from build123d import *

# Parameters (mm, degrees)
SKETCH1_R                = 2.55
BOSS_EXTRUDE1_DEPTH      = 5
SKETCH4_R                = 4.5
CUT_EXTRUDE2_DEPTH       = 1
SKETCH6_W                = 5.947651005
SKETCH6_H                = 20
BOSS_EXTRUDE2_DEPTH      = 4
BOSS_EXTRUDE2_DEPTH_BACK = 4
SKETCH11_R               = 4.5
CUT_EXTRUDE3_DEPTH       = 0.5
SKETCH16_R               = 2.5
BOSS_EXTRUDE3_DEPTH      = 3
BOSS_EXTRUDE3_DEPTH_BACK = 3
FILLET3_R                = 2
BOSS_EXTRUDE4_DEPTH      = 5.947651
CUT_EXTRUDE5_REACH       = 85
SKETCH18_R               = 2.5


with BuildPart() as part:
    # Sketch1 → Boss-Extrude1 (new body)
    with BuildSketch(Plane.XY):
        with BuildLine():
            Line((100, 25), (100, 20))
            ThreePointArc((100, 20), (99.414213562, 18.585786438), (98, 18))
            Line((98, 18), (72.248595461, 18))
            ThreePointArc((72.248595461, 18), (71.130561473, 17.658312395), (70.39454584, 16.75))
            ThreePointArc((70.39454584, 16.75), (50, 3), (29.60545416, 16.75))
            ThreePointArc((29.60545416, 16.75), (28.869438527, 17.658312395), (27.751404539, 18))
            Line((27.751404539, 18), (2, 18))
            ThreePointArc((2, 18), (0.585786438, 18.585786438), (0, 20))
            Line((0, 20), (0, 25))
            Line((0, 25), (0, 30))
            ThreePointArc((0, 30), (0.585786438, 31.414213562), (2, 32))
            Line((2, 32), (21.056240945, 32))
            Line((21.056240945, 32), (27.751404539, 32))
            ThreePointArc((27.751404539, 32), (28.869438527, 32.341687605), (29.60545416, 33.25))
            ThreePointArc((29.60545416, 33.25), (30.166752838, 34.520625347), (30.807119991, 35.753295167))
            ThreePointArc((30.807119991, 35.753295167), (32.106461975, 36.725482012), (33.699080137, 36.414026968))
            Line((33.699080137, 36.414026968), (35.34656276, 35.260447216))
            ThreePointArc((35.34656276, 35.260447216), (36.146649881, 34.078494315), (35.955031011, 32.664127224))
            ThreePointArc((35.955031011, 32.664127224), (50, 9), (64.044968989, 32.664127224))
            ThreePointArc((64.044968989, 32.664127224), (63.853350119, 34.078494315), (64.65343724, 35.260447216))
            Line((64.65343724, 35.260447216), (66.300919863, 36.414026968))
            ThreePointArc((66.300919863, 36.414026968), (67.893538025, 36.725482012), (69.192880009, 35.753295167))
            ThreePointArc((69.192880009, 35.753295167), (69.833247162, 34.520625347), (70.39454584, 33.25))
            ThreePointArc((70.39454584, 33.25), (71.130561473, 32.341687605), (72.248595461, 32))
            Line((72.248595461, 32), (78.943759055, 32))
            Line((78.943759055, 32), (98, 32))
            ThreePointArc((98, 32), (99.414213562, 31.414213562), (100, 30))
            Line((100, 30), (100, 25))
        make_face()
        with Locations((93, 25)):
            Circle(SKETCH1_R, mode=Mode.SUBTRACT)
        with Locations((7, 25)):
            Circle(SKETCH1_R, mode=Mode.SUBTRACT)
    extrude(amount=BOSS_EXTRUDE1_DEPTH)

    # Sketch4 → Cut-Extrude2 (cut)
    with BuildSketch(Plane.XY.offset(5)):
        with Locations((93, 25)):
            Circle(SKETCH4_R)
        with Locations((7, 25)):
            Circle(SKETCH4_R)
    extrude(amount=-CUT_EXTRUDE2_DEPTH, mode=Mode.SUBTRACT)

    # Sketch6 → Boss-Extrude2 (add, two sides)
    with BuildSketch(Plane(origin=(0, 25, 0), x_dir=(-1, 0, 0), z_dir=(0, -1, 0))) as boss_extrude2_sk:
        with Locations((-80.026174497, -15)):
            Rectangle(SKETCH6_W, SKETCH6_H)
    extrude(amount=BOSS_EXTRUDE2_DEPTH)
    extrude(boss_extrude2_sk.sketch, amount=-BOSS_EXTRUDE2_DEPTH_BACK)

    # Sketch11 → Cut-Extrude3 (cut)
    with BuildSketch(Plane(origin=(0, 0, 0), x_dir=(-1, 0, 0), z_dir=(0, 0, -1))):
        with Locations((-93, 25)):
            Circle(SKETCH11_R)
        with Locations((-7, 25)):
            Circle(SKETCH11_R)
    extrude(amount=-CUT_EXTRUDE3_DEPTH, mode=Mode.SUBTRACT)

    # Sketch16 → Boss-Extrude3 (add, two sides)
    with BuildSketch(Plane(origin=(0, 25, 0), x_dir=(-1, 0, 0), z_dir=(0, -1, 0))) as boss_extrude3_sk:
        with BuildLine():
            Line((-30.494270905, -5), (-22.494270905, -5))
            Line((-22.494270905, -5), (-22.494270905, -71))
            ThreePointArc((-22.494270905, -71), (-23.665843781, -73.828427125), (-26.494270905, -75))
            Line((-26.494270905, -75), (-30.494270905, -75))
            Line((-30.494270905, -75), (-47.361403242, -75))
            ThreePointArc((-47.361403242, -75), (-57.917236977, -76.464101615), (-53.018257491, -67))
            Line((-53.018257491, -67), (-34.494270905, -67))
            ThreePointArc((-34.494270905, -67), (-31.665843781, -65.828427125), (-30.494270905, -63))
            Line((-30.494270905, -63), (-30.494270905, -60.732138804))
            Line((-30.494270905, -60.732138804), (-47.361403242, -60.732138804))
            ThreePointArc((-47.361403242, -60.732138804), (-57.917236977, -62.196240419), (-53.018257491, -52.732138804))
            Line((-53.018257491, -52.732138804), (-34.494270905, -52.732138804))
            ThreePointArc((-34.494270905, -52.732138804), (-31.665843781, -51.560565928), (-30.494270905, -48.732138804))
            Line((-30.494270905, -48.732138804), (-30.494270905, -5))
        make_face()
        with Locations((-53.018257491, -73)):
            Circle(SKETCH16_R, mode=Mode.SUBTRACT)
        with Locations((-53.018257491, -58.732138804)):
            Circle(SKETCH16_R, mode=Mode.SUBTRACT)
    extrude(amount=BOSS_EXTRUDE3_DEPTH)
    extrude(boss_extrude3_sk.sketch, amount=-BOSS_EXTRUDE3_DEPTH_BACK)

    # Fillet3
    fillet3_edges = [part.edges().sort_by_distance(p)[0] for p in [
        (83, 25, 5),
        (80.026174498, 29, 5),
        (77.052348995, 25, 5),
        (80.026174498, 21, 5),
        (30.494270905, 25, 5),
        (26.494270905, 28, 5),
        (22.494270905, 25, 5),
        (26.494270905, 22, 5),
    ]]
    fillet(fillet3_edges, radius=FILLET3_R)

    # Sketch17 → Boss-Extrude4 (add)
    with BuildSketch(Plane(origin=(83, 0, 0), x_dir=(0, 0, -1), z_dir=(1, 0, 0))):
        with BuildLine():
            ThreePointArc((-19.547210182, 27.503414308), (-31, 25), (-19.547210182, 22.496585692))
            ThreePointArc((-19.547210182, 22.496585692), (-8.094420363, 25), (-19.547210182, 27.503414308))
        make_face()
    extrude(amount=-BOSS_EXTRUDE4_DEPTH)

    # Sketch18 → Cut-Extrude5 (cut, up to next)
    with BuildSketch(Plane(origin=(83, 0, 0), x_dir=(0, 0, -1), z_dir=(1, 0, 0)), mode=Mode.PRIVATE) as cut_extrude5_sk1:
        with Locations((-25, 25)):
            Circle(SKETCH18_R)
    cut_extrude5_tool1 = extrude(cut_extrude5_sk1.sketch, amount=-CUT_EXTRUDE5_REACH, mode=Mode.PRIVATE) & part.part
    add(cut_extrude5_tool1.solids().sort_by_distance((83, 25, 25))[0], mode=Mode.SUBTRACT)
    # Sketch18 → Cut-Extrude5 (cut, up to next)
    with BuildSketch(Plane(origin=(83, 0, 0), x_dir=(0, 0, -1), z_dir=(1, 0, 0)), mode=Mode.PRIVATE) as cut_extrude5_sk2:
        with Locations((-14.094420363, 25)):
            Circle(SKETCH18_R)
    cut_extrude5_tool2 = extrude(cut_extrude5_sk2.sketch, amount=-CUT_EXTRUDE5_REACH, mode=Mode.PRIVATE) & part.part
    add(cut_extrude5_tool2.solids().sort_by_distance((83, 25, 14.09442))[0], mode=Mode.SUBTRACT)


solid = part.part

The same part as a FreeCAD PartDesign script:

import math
import FreeCAD as App
import Part
import Sketcher

V = App.Vector
Q = App.Units.Quantity


def edges_at(feature, points):
    """Names of the edges that pass closest to the given points."""
    edges = feature.Shape.Edges
    near = lambda p: min(range(len(edges)), key=lambda i: edges[i].distToShape(Part.Vertex(*p))[0])
    return sorted({f"Edge{near(p) + 1}" for p in points})


def add_polygon(sketch, points):
    """Adds a closed chain of lines whose ends are joined by coincident constraints."""
    first, n = sketch.GeometryCount, len(points)
    for a, b in zip(points, points[1:] + points[:1]):
        sketch.addGeometry(Part.LineSegment(App.Vector(*a, 0), App.Vector(*b, 0)), False)
    for i in range(n):
        sketch.addConstraint(Sketcher.Constraint("Coincident", first + i, 2, first + (i + 1) % n, 1))

doc = App.newDocument("Part")
body = doc.addObject("PartDesign::Body", "Body")

# Sketch on XY plane
sketch1 = doc.addObject("Sketcher::SketchObject", "Sketch")
body.addObject(sketch1)
sketch1.AttachmentSupport = (doc.XY_Plane, [""])
sketch1.MapMode = "FlatFace"
sketch1.addGeometry([
    Part.ArcOfCircle(Part.Circle(V(98, 20, 0), V(0, 0, 1), 2), math.radians(-90), math.radians(0)),  # 0
    Part.LineSegment(V(100, 20, 0), V(100, 30, 0)),  # 1
    Part.ArcOfCircle(Part.Circle(V(98, 30, 0), V(0, 0, 1), 2), math.radians(0), math.radians(90)),  # 2
    Part.LineSegment(V(98, 32, 0), V(72.2, 32, 0)),  # 3
    Part.ArcOfCircle(Part.Circle(V(72.2, 34, 0), V(0, 0, 1), 2), math.radians(-158), math.radians(-90)),  # 4
    Part.ArcOfCircle(Part.Circle(V(50, 25, 0), V(0, 0, 1), 22), math.radians(22.02), math.radians(29.26)),  # 5
    Part.ArcOfCircle(Part.Circle(V(67.4, 34.8, 0), V(0, 0, 1), 2), math.radians(29), math.radians(125)),  # 6
    Part.LineSegment(V(66.3, 36.4, 0), V(64.7, 35.3, 0)),  # 7
    Part.ArcOfCircle(Part.Circle(V(65.8, 33.6, 0), V(0, 0, 1), 2), math.radians(125), math.radians(209)),  # 8
    Part.ArcOfCircle(Part.Circle(V(50, 25, 0), V(0, 0, 1), 16), math.radians(151), math.radians(389)),  # 9
    Part.ArcOfCircle(Part.Circle(V(34.2, 33.6, 0), V(0, 0, 1), 2), math.radians(-29), math.radians(55)),  # 10
    Part.LineSegment(V(35.3, 35.3, 0), V(33.7, 36.4, 0)),  # 11
    Part.ArcOfCircle(Part.Circle(V(32.6, 34.8, 0), V(0, 0, 1), 2), math.radians(55), math.radians(151)),  # 12
    Part.ArcOfCircle(Part.Circle(V(50, 25, 0), V(0, 0, 1), 22), math.radians(150.74), math.radians(157.98)),  # 13
    Part.ArcOfCircle(Part.Circle(V(27.8, 34, 0), V(0, 0, 1), 2), math.radians(-90), math.radians(-22)),  # 14
    Part.LineSegment(V(27.8, 32, 0), V(2, 32, 0)),  # 15
    Part.ArcOfCircle(Part.Circle(V(2, 30, 0), V(0, 0, 1), 2), math.radians(90), math.radians(180)),  # 16
    Part.LineSegment(V(0, 30, 0), V(0, 20, 0)),  # 17
    Part.ArcOfCircle(Part.Circle(V(2, 20, 0), V(0, 0, 1), 2), math.radians(-180), math.radians(-90)),  # 18
    Part.LineSegment(V(2, 18, 0), V(27.8, 18, 0)),  # 19
    Part.ArcOfCircle(Part.Circle(V(27.8, 16, 0), V(0, 0, 1), 2), math.radians(22), math.radians(90)),  # 20
    Part.ArcOfCircle(Part.Circle(V(50, 25, 0), V(0, 0, 1), 22), math.radians(-158), math.radians(-22)),  # 21
    Part.ArcOfCircle(Part.Circle(V(72.2, 16, 0), V(0, 0, 1), 2), math.radians(90), math.radians(158)),  # 22
    Part.LineSegment(V(72.2, 18, 0), V(98, 18, 0)),  # 23
    Part.Circle(V(93, 25, 0), V(0, 0, 1), 2.5),  # 24
    Part.Circle(V(7, 25, 0), V(0, 0, 1), 2.5),  # 25
], False)
sketch1.addConstraint([
    Sketcher.Constraint("Tangent", 0, 2, 1, 1),
    Sketcher.Constraint("Tangent", 1, 2, 2, 1),
    Sketcher.Constraint("Tangent", 2, 2, 3, 1),
    Sketcher.Constraint("Tangent", 3, 2, 4, 2),
    Sketcher.Constraint("Tangent", 4, 1, 5, 1),
    Sketcher.Constraint("Tangent", 5, 2, 6, 1),
    Sketcher.Constraint("Tangent", 6, 2, 7, 1),
    Sketcher.Constraint("Tangent", 7, 2, 8, 1),
    Sketcher.Constraint("Tangent", 8, 2, 9, 2),
    Sketcher.Constraint("Tangent", 9, 1, 10, 1),
    Sketcher.Constraint("Tangent", 10, 2, 11, 1),
    Sketcher.Constraint("Tangent", 11, 2, 12, 1),
    Sketcher.Constraint("Tangent", 12, 2, 13, 1),
    Sketcher.Constraint("Tangent", 13, 2, 14, 2),
    Sketcher.Constraint("Tangent", 14, 1, 15, 1),
    Sketcher.Constraint("Tangent", 15, 2, 16, 1),
    Sketcher.Constraint("Tangent", 16, 2, 17, 1),
    Sketcher.Constraint("Tangent", 17, 2, 18, 1),
    Sketcher.Constraint("Tangent", 18, 2, 19, 1),
    Sketcher.Constraint("Tangent", 19, 2, 20, 2),
    Sketcher.Constraint("Tangent", 20, 1, 21, 1),
    Sketcher.Constraint("Tangent", 21, 2, 22, 2),
    Sketcher.Constraint("Tangent", 22, 1, 23, 1),
    Sketcher.Constraint("Tangent", 23, 2, 0, 1),
    Sketcher.Constraint("Vertical", 1),
    Sketcher.Constraint("Horizontal", 3),
    Sketcher.Constraint("Horizontal", 15),
    Sketcher.Constraint("Vertical", 17),
    Sketcher.Constraint("Horizontal", 19),
    Sketcher.Constraint("Horizontal", 23),
    Sketcher.Constraint("Coincident", 9, 3, 5, 3),
    Sketcher.Constraint("Coincident", 13, 3, 5, 3),
    Sketcher.Constraint("Coincident", 21, 3, 5, 3),
    Sketcher.Constraint("Equal", 0, 2),
    Sketcher.Constraint("Equal", 2, 4),
    Sketcher.Constraint("Equal", 4, 6),
    Sketcher.Constraint("Equal", 6, 8),
    Sketcher.Constraint("Equal", 8, 10),
    Sketcher.Constraint("Equal", 10, 12),
    Sketcher.Constraint("Equal", 5, 13),
    Sketcher.Constraint("Equal", 12, 14),
    Sketcher.Constraint("Equal", 14, 16),
    Sketcher.Constraint("Equal", 16, 18),
    Sketcher.Constraint("Equal", 18, 20),
    Sketcher.Constraint("Equal", 13, 21),
    Sketcher.Constraint("Equal", 20, 22),
    Sketcher.Constraint("Equal", 24, 25),
    Sketcher.Constraint("PointOnObject", 16, 2, -2),
    Sketcher.Constraint("Horizontal", 8, 3, 10, 3),
    Sketcher.Constraint("Horizontal", 6, 3, 12, 3),
    Sketcher.Constraint("Horizontal", 4, 3, 14, 3),
    Sketcher.Constraint("Horizontal", 0, 3, 18, 3),
    Sketcher.Constraint("Horizontal", 21, 3, 24, 3),
    Sketcher.Constraint("Horizontal", 24, 3, 25, 3),
    Sketcher.Constraint("Vertical", 14, 3, 20, 3),
    Sketcher.Constraint("Equal", 3, 15),
    Sketcher.Constraint("Radius", 0, Q("2 mm")),
    Sketcher.Constraint("Radius", 5, Q("22 mm")),
    Sketcher.Constraint("Radius", 9, Q("16 mm")),
    Sketcher.Constraint("Diameter", 24, Q("5.1 mm")),
    Sketcher.Constraint("DistanceY", 1, 1, 1, 2, Q("10 mm")),
    Sketcher.Constraint("Angle", 7, Q("-145 deg")),
    Sketcher.Constraint("DistanceX", -1, 1, 0, 3, Q("98 mm")),
    Sketcher.Constraint("DistanceY", -1, 1, 0, 3, Q("20 mm")),
    Sketcher.Constraint("DistanceX", -1, 1, 24, 3, Q("93 mm")),
    Sketcher.Constraint("DistanceX", -1, 1, 25, 3, Q("7 mm")),
    Sketcher.Constraint("DistanceY", 8, 2, 6, 2, Q("3.7499 mm")),
])
pad1 = doc.addObject("PartDesign::Pad", "Pad")
body.addObject(pad1)
pad1.Profile = sketch1
pad1.Length = 5

# Sketch on XY plane
sketch2 = doc.addObject("Sketcher::SketchObject", "Sketch001")
body.addObject(sketch2)
sketch2.AttachmentSupport = (doc.XY_Plane, [""])
sketch2.MapMode = "FlatFace"
sketch2.AttachmentOffset = App.Placement(V(0, 0, 5), App.Rotation())
sketch2.addGeometry([
    Part.Circle(V(93, 25, 0), V(0, 0, 1), 4.5),
    Part.Circle(V(7, 25, 0), V(0, 0, 1), 4.5),
], False)
sketch2.addConstraint([
    Sketcher.Constraint("Equal", 0, 1),
    Sketcher.Constraint("Horizontal", 0, 3, 1, 3),
    Sketcher.Constraint("Diameter", 0, Q("9 mm")),
    Sketcher.Constraint("DistanceX", -1, 1, 0, 3, Q("93 mm")),
    Sketcher.Constraint("DistanceY", -1, 1, 0, 3, Q("25 mm")),
    Sketcher.Constraint("DistanceX", -1, 1, 1, 3, Q("7 mm")),
])
pocket1 = doc.addObject("PartDesign::Pocket", "Pocket")
body.addObject(pocket1)
pocket1.Profile = sketch2
pocket1.Length = 1

# Sketch on XZ plane
sketch3 = doc.addObject("Sketcher::SketchObject", "Sketch002")
body.addObject(sketch3)
sketch3.AttachmentSupport = (doc.XZ_Plane, [""])
sketch3.MapMode = "FlatFace"
sketch3.AttachmentOffset = App.Placement(V(0, 0, -25), App.Rotation())
add_polygon(sketch3, [(83, 5), (83, 25), (77, 25), (77, 5)])  # lines 0-3
sketch3.addConstraint([
    Sketcher.Constraint("Vertical", 0),
    Sketcher.Constraint("Horizontal", 1),
    Sketcher.Constraint("Vertical", 2),
    Sketcher.Constraint("Horizontal", 3),
    Sketcher.Constraint("DistanceY", 0, 1, 0, 2, Q("20 mm")),
    Sketcher.Constraint("DistanceX", -1, 1, 0, 2, Q("83 mm")),
    Sketcher.Constraint("DistanceY", -1, 1, 0, 2, Q("25 mm")),
    Sketcher.Constraint("DistanceX", 1, 2, 1, 1, Q("5.947651 mm")),
])
pad2 = doc.addObject("PartDesign::Pad", "Pad001")
body.addObject(pad2)
pad2.Profile = sketch3
pad2.Type = "TwoLengths"
pad2.Length = 4
pad2.Length2 = 4

# Sketch on XY plane
sketch4 = doc.addObject("Sketcher::SketchObject", "Sketch003")
body.addObject(sketch4)
sketch4.AttachmentSupport = (doc.XY_Plane, [""])
sketch4.MapMode = "FlatFace"
sketch4.addGeometry([
    Part.Circle(V(93, 25, 0), V(0, 0, 1), 4.5),
    Part.Circle(V(7, 25, 0), V(0, 0, 1), 4.5),
], False)
sketch4.addConstraint([
    Sketcher.Constraint("Equal", 0, 1),
    Sketcher.Constraint("Horizontal", 0, 3, 1, 3),
    Sketcher.Constraint("Diameter", 0, Q("9 mm")),
    Sketcher.Constraint("DistanceX", -1, 1, 0, 3, Q("93 mm")),
    Sketcher.Constraint("DistanceY", -1, 1, 0, 3, Q("25 mm")),
    Sketcher.Constraint("DistanceX", -1, 1, 1, 3, Q("7 mm")),
])
pocket2 = doc.addObject("PartDesign::Pocket", "Pocket001")
body.addObject(pocket2)
pocket2.Profile = sketch4
pocket2.Length = 0.5
pocket2.Reversed = True

# Sketch on XZ plane
sketch5 = doc.addObject("Sketcher::SketchObject", "Sketch004")
body.addObject(sketch5)
sketch5.AttachmentSupport = (doc.XZ_Plane, [""])
sketch5.MapMode = "FlatFace"
sketch5.AttachmentOffset = App.Placement(V(0, 0, -25), App.Rotation())
sketch5.addGeometry([
    Part.LineSegment(V(22.5, 5, 0), V(30.5, 5, 0)),  # 0
    Part.LineSegment(V(30.5, 5, 0), V(30.5, 48.7, 0)),  # 1
    Part.ArcOfCircle(Part.Circle(V(34.5, 48.7, 0), V(0, 0, 1), 4), math.radians(90), math.radians(180)),  # 2
    Part.LineSegment(V(34.5, 52.7, 0), V(53, 52.7, 0)),  # 3
    Part.ArcOfCircle(Part.Circle(V(53, 58.7, 0), V(0, 0, 1), 6), math.radians(-90), math.radians(161)),  # 4
    Part.LineSegment(V(47.4, 60.7, 0), V(30.5, 60.7, 0)),  # 5
    Part.LineSegment(V(30.5, 60.7, 0), V(30.5, 63, 0)),  # 6
    Part.ArcOfCircle(Part.Circle(V(34.5, 63, 0), V(0, 0, 1), 4), math.radians(90), math.radians(180)),  # 7
    Part.LineSegment(V(34.5, 67, 0), V(53, 67, 0)),  # 8
    Part.ArcOfCircle(Part.Circle(V(53, 73, 0), V(0, 0, 1), 6), math.radians(-90), math.radians(161)),  # 9
    Part.LineSegment(V(47.4, 75, 0), V(26.5, 75, 0)),  # 10
    Part.ArcOfCircle(Part.Circle(V(26.5, 71, 0), V(0, 0, 1), 4), math.radians(90), math.radians(180)),  # 11
    Part.LineSegment(V(22.5, 71, 0), V(22.5, 5, 0)),  # 12
    Part.Circle(V(53, 73, 0), V(0, 0, 1), 2.5),  # 13
    Part.Circle(V(53, 58.7, 0), V(0, 0, 1), 2.5),  # 14
], False)
sketch5.addConstraint([
    Sketcher.Constraint("Coincident", 0, 2, 1, 1),
    Sketcher.Constraint("Tangent", 1, 2, 2, 2),
    Sketcher.Constraint("Tangent", 2, 1, 3, 1),
    Sketcher.Constraint("Tangent", 3, 2, 4, 1),
    Sketcher.Constraint("Coincident", 4, 2, 5, 1),
    Sketcher.Constraint("Coincident", 5, 2, 6, 1),
    Sketcher.Constraint("Tangent", 6, 2, 7, 2),
    Sketcher.Constraint("Tangent", 7, 1, 8, 1),
    Sketcher.Constraint("Tangent", 8, 2, 9, 1),
    Sketcher.Constraint("Coincident", 9, 2, 10, 1),
    Sketcher.Constraint("Tangent", 10, 2, 11, 1),
    Sketcher.Constraint("Tangent", 11, 2, 12, 1),
    Sketcher.Constraint("Coincident", 12, 2, 0, 1),
    Sketcher.Constraint("Horizontal", 0),
    Sketcher.Constraint("Vertical", 1),
    Sketcher.Constraint("Horizontal", 3),
    Sketcher.Constraint("Horizontal", 5),
    Sketcher.Constraint("Vertical", 6),
    Sketcher.Constraint("Horizontal", 8),
    Sketcher.Constraint("Horizontal", 10),
    Sketcher.Constraint("Vertical", 12),
    Sketcher.Constraint("Coincident", 13, 3, 9, 3),
    Sketcher.Constraint("Coincident", 14, 3, 4, 3),
    Sketcher.Constraint("Equal", 2, 7),
    Sketcher.Constraint("Equal", 4, 9),
    Sketcher.Constraint("Equal", 7, 11),
    Sketcher.Constraint("Equal", 13, 14),
    Sketcher.Constraint("Vertical", 2, 3, 7, 3),
    Sketcher.Constraint("Vertical", 4, 3, 9, 3),
    Sketcher.Constraint("Vertical", 4, 2, 9, 2),
    Sketcher.Constraint("Diameter", 13, Q("5 mm")),
    Sketcher.Constraint("Radius", 2, Q("4 mm")),
    Sketcher.Constraint("Radius", 4, Q("6 mm")),
    Sketcher.Constraint("DistanceX", 0, 1, 0, 2, Q("8 mm")),
    Sketcher.Constraint("DistanceY", 12, 2, 12, 1, Q("66 mm")),
    Sketcher.Constraint("DistanceY", -1, 1, 7, 3, Q("63 mm")),
    Sketcher.Constraint("DistanceY", -1, 1, 11, 3, Q("71 mm")),
    Sketcher.Constraint("DistanceY", 1, 1, 1, 2, Q("43.732139 mm")),
    Sketcher.Constraint("DistanceX", 3, 1, 3, 2, Q("18.523987 mm")),
    Sketcher.Constraint("DistanceX", -1, 1, 2, 3, Q("34.494271 mm")),
])
pad3 = doc.addObject("PartDesign::Pad", "Pad002")
body.addObject(pad3)
pad3.Profile = sketch5
pad3.Type = "TwoLengths"
pad3.Length = 3
pad3.Length2 = 3
doc.recompute()

fillet = doc.addObject("PartDesign::Fillet", "Fillet")
body.addObject(fillet)
fillet.Base = (pad3, edges_at(pad3, [
    (83, 25, 5),
    (80.026, 29, 5),
    (77.052, 25, 5),
    (80.026, 21, 5),
    (30.494, 25, 5),
    (26.494, 28, 5),
    (22.494, 25, 5),
    (26.494, 22, 5),
]))
fillet.Radius = 2

# Sketch on YZ plane
sketch6 = doc.addObject("Sketcher::SketchObject", "Sketch005")
body.addObject(sketch6)
sketch6.AttachmentSupport = (doc.YZ_Plane, [""])
sketch6.MapMode = "FlatFace"
sketch6.AttachmentOffset = App.Placement(V(0, 0, 83), App.Rotation())
sketch6.addGeometry([
    Part.ArcOfCircle(Part.Circle(V(25, 25, 0), V(0, 0, 1), 6), math.radians(-65), math.radians(245)),
    Part.ArcOfCircle(Part.Circle(V(25, 14, 0), V(0, 0, 1), 6), math.radians(115), math.radians(425)),
], False)
sketch6.addConstraint([
    Sketcher.Constraint("Coincident", 0, 1, 1, 2),
    Sketcher.Constraint("Coincident", 1, 1, 0, 2),
    Sketcher.Constraint("Equal", 0, 1),
    Sketcher.Constraint("Horizontal", 0, 1, 1, 1),
    Sketcher.Constraint("Radius", 0, Q("6 mm")),
    Sketcher.Constraint("DistanceX", -1, 1, 0, 3, Q("25 mm")),
    Sketcher.Constraint("DistanceY", -1, 1, 0, 3, Q("25 mm")),
    Sketcher.Constraint("DistanceY", -1, 1, 1, 3, Q("14.09442 mm")),
])
pad4 = doc.addObject("PartDesign::Pad", "Pad003")
body.addObject(pad4)
pad4.Profile = sketch6
pad4.Length = 5.947651
pad4.Reversed = True

# Sketch on YZ plane
sketch7 = doc.addObject("Sketcher::SketchObject", "Sketch006")
body.addObject(sketch7)
sketch7.AttachmentSupport = (doc.YZ_Plane, [""])
sketch7.MapMode = "FlatFace"
sketch7.AttachmentOffset = App.Placement(V(0, 0, 83), App.Rotation())
sketch7.addGeometry(Part.Circle(V(25, 25, 0), V(0, 0, 1), 2.5), False)
sketch7.addConstraint([
    Sketcher.Constraint("Diameter", 0, Q("5 mm")),
    Sketcher.Constraint("DistanceX", -1, 1, 0, 3, Q("25 mm")),
    Sketcher.Constraint("DistanceY", -1, 1, 0, 3, Q("25 mm")),
])
pocket3 = doc.addObject("PartDesign::Pocket", "Pocket002")
body.addObject(pocket3)
pocket3.Profile = sketch7
pocket3.Type = "UpToFirst"

# Sketch on YZ plane
sketch8 = doc.addObject("Sketcher::SketchObject", "Sketch007")
body.addObject(sketch8)
sketch8.AttachmentSupport = (doc.YZ_Plane, [""])
sketch8.MapMode = "FlatFace"
sketch8.AttachmentOffset = App.Placement(V(0, 0, 83), App.Rotation())
sketch8.addGeometry(Part.Circle(V(25, 14.1, 0), V(0, 0, 1), 2.5), False)
sketch8.addConstraint([
    Sketcher.Constraint("Diameter", 0, Q("5 mm")),
    Sketcher.Constraint("DistanceX", -1, 1, 0, 3, Q("25 mm")),
    Sketcher.Constraint("DistanceY", -1, 1, 0, 3, Q("14.09442 mm")),
])
pocket4 = doc.addObject("PartDesign::Pocket", "Pocket003")
body.addObject(pocket4)
pocket4.Profile = sketch8
pocket4.Type = "UpToFirst"

doc.recompute()
